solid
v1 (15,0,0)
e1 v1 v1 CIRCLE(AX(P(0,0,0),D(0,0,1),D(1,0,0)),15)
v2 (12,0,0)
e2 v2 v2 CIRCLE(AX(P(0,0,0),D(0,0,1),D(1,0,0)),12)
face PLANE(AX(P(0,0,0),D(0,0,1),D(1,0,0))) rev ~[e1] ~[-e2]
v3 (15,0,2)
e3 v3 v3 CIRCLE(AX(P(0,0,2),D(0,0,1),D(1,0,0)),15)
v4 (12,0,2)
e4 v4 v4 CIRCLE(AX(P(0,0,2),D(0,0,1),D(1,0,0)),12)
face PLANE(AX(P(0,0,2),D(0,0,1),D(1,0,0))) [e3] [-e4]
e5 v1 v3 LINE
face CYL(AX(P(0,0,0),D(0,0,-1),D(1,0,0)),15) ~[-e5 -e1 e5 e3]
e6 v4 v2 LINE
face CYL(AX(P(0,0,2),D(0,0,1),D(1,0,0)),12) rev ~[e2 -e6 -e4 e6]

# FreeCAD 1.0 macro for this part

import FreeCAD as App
import Part
import Sketcher
from FreeCAD import Vector
Q = App.Units.Quantity

doc = App.newDocument("Part")
body = doc.addObject("PartDesign::Body", "Body")

# Sketch on XY plane
sketch1 = doc.addObject("Sketcher::SketchObject", "Sketch")
body.addObject(sketch1)
sketch1.AttachmentSupport = (doc.XY_Plane, [""])
sketch1.MapMode = "FlatFace"
sketch1.addGeometry(Part.Circle(Vector(0, 0, 0), Vector(0, 0, 1), 15), False)
sketch1.addConstraint([
    Sketcher.Constraint("Coincident", 0, 3, -1, 1),
    Sketcher.Constraint("Diameter", 0, Q("30 mm")),
])
pad1 = doc.addObject("PartDesign::Pad", "Pad")
body.addObject(pad1)
pad1.Profile = sketch1
pad1.Length = 2

# Sketch on XY plane
sketch2 = doc.addObject("Sketcher::SketchObject", "Sketch001")
body.addObject(sketch2)
sketch2.AttachmentSupport = (doc.XY_Plane, [""])
sketch2.MapMode = "FlatFace"
sketch2.AttachmentOffset = App.Placement(Vector(0, 0, 2), App.Rotation())
sketch2.addGeometry(Part.Circle(Vector(0, 0, 0), Vector(0, 0, 1), 12), False)
sketch2.addConstraint([
    Sketcher.Constraint("Coincident", 0, 3, -1, 1),
    Sketcher.Constraint("Diameter", 0, Q("24 mm")),
])
pocket1 = doc.addObject("PartDesign::Pocket", "Pocket")
body.addObject(pocket1)
pocket1.Profile = sketch2
pocket1.Type = "ThroughAll"

doc.recompute()
